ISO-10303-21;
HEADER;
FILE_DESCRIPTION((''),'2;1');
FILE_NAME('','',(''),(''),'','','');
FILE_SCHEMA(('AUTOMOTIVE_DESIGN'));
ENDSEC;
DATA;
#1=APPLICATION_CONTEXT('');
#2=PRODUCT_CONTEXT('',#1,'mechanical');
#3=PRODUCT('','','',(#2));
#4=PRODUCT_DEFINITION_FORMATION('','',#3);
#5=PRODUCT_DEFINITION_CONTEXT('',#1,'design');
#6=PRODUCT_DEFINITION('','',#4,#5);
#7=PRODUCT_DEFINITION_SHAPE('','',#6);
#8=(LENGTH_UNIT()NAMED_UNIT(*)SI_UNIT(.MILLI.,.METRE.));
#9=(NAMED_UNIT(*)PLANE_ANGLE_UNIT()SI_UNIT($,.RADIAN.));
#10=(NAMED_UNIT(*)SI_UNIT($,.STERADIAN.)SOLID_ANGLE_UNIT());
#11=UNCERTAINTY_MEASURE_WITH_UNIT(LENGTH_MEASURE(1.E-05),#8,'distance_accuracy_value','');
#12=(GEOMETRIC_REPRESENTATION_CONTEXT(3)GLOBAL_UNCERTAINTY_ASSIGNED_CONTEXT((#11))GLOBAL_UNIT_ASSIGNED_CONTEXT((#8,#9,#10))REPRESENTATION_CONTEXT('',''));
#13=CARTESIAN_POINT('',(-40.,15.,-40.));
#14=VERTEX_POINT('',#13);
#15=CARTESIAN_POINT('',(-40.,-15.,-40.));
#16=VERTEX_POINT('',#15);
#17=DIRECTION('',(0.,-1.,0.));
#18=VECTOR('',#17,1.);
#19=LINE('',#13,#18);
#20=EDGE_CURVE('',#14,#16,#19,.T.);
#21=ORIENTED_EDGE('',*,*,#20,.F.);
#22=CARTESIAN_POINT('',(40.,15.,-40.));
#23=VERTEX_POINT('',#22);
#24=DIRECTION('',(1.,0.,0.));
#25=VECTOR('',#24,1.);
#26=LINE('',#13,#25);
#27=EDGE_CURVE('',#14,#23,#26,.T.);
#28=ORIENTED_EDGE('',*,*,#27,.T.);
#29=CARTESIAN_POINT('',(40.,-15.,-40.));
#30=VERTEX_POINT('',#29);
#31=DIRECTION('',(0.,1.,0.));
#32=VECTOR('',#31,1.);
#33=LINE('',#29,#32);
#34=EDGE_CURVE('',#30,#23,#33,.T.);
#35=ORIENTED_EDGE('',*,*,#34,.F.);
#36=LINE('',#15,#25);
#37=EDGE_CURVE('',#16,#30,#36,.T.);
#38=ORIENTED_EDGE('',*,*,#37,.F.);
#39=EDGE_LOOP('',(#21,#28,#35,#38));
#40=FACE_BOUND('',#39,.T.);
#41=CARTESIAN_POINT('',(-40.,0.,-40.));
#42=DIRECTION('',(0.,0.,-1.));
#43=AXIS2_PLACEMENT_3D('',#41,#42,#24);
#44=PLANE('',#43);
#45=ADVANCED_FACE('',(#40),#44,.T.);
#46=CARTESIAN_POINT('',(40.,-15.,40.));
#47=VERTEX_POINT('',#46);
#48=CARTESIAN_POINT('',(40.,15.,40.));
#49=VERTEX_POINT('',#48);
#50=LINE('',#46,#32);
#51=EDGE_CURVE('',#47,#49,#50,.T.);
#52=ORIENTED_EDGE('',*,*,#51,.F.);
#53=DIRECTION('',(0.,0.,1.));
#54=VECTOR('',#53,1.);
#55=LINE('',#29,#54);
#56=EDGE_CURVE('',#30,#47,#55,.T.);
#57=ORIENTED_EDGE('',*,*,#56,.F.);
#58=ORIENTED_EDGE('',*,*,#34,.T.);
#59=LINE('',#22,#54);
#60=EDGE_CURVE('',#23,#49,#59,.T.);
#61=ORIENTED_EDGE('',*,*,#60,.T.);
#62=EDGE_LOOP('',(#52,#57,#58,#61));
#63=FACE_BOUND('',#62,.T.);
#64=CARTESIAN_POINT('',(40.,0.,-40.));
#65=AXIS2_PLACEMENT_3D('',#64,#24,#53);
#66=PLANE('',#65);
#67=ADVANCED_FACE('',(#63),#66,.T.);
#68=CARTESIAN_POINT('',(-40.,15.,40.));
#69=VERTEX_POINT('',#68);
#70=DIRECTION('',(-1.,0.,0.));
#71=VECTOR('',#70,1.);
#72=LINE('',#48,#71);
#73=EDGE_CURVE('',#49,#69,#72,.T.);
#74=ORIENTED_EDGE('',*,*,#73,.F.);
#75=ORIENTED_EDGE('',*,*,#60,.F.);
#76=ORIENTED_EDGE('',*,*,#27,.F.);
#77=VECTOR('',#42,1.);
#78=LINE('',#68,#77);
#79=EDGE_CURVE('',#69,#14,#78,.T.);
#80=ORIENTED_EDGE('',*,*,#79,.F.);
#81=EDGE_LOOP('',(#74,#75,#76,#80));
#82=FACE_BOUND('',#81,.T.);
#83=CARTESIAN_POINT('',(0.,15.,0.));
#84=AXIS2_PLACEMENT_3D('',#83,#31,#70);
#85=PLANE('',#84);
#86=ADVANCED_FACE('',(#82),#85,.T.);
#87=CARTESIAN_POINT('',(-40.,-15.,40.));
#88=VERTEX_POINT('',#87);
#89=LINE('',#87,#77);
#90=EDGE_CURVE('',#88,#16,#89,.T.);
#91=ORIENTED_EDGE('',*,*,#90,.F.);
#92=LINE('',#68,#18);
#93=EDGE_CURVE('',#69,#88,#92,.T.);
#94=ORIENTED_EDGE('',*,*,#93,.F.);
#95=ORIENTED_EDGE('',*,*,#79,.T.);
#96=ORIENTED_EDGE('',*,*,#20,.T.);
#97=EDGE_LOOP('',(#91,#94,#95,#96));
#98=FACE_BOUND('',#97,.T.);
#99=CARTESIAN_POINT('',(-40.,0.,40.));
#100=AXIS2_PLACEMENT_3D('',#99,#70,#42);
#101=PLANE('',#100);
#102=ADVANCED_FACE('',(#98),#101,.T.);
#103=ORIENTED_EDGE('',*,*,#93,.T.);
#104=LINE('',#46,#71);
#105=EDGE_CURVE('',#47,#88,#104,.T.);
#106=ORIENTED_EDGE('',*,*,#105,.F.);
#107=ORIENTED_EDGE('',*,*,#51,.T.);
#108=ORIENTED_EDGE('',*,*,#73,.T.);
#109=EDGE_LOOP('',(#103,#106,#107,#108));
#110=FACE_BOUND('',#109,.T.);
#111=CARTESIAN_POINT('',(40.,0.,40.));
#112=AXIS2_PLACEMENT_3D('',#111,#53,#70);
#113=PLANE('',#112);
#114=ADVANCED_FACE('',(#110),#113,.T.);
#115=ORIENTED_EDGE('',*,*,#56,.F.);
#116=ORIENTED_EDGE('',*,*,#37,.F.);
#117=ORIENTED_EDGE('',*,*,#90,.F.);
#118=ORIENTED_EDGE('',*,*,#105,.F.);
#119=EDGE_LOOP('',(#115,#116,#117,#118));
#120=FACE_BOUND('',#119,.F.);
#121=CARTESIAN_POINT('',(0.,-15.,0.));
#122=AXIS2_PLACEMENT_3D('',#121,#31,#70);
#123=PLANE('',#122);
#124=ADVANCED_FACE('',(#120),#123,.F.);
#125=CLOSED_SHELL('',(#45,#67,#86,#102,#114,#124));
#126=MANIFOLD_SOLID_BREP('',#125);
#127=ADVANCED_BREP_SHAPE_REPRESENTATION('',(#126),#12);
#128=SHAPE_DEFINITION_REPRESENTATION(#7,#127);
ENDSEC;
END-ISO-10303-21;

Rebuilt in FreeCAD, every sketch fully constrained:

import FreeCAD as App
import Part
import Sketcher
from FreeCAD import Vector


def add_polygon(sketch, points):
    """Adds a closed chain of lines whose ends are joined by coincident constraints."""
    first, n = sketch.GeometryCount, len(points)
    for a, b in zip(points, points[1:] + points[:1]):
        sketch.addGeometry(Part.LineSegment(App.Vector(*a, 0), App.Vector(*b, 0)), False)
    for i in range(n):
        sketch.addConstraint(Sketcher.Constraint("Coincident", first + i, 2, first + (i + 1) % n, 1))

doc = App.newDocument("Part")
body = doc.addObject("PartDesign::Body", "Body")

sketch1 = body.newObject("Sketcher::SketchObject", "Sketch")
sketch1.AttachmentSupport = (doc.getObject("XZ_Plane"), [""])
sketch1.MapMode = "FlatFace"
add_polygon(sketch1, [(-40, 40), (40, 40), (40, -40), (-40, -40)])
sketch1.addConstraint([
    Sketcher.Constraint("Horizontal", 0),
    Sketcher.Constraint("Vertical", 1),
    Sketcher.Constraint("Horizontal", 2),
    Sketcher.Constraint("Vertical", 3),
    Sketcher.Constraint("Symmetric", 0, 2, 2, 2, -1, 1),
    Sketcher.Constraint("Equal", 2, 1),
    Sketcher.Constraint("DistanceX", 0, 1, 0, 2, 80.0),
])
pad1 = body.newObject("PartDesign::Pad", "Pad")
pad1.Profile = sketch1
pad1.Length = 30
pad1.Midplane = True

doc.recompute()
